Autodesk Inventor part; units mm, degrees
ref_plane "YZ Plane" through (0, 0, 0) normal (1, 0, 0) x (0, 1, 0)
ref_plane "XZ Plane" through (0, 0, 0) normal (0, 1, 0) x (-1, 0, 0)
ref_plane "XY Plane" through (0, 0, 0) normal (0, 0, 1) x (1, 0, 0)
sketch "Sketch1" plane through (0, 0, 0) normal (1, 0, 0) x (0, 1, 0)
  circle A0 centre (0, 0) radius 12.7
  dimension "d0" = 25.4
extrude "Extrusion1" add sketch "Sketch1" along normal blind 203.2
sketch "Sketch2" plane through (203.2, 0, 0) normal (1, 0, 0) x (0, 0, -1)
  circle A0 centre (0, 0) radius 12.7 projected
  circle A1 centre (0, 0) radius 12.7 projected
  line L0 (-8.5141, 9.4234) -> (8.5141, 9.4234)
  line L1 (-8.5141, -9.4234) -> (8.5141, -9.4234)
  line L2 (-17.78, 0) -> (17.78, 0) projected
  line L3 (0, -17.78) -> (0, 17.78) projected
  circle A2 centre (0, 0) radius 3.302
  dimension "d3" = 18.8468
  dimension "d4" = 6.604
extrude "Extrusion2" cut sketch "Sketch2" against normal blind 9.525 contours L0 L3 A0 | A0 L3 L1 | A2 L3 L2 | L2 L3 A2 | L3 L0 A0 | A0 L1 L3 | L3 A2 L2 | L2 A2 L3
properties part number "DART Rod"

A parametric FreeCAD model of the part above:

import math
import FreeCAD as App
import Part
import Sketcher
Q = App.Units.Quantity

doc = App.newDocument("Part")
body = doc.addObject("PartDesign::Body", "Body")

sketch1 = body.newObject("Sketcher::SketchObject", "Sketch")
sketch1.AttachmentSupport = (doc.getObject("YZ_Plane"), [""])
sketch1.MapMode = "FlatFace"
sketch1.addGeometry(Part.Circle(App.Vector(0, 0, 0), App.Vector(0, 0, 1), 13), False)
sketch1.addConstraint([
    Sketcher.Constraint("Coincident", 0, 3, -1, 1),
    Sketcher.Constraint("Diameter", 0, Q("1 in")),
])
pad1 = body.newObject("PartDesign::Pad", "Pad")
pad1.Profile = sketch1
pad1.Length = Q("8 in")

sketch2 = body.newObject("Sketcher::SketchObject", "Sketch001")
sketch2.AttachmentSupport = (doc.getObject("YZ_Plane"), [""])
sketch2.MapMode = "FlatFace"
sketch2.AttachmentOffset = App.Placement(App.Vector(0, 0, 8 * 25.4), App.Rotation())
sketch2.addGeometry([
    Part.ArcOfCircle(Part.Circle(App.Vector(0, 0, 0), App.Vector(0, 0, 1), 12.7), math.radians(-42), math.radians(42)),
    Part.LineSegment(App.Vector(9.4, -8.5, 0), App.Vector(9.4, 8.5, 0)),
    Part.LineSegment(App.Vector(-9.4, -8.5, 0), App.Vector(-9.4, 8.5, 0)),
    Part.ArcOfCircle(Part.Circle(App.Vector(0, 0, 0), App.Vector(0, 0, 1), 12.7), math.radians(138), math.radians(222)),
    Part.Circle(App.Vector(0, 0, 0), App.Vector(0, 0, 1), 3.3),
], False)
sketch2.addConstraint([
    Sketcher.Constraint("Coincident", 0, 1, 1, 1),
    Sketcher.Constraint("Coincident", 1, 2, 0, 2),
    Sketcher.Constraint("Coincident", 2, 1, 3, 2),
    Sketcher.Constraint("Coincident", 3, 1, 2, 2),
    Sketcher.Constraint("Vertical", 1),
    Sketcher.Constraint("Vertical", 2),
    Sketcher.Constraint("Coincident", 0, 3, -1, 1),
    Sketcher.Constraint("Coincident", 3, 3, -1, 1),
    Sketcher.Constraint("Coincident", 4, 3, -1, 1),
    Sketcher.Constraint("Equal", 0, 3),
    Sketcher.Constraint("Horizontal", 0, 1, 2, 1),
    Sketcher.Constraint("Diameter", 4, Q("0.26 in")),
    Sketcher.Constraint("Radius", 0, Q("0.5 in")),
    Sketcher.Constraint("DistanceX", 2, 1, 0, 1, Q("0.742 in")),
])
pocket1 = body.newObject("PartDesign::Pocket", "Pocket")
pocket1.Profile = sketch2
pocket1.Length = Q("0.375 in")

doc.recompute()
